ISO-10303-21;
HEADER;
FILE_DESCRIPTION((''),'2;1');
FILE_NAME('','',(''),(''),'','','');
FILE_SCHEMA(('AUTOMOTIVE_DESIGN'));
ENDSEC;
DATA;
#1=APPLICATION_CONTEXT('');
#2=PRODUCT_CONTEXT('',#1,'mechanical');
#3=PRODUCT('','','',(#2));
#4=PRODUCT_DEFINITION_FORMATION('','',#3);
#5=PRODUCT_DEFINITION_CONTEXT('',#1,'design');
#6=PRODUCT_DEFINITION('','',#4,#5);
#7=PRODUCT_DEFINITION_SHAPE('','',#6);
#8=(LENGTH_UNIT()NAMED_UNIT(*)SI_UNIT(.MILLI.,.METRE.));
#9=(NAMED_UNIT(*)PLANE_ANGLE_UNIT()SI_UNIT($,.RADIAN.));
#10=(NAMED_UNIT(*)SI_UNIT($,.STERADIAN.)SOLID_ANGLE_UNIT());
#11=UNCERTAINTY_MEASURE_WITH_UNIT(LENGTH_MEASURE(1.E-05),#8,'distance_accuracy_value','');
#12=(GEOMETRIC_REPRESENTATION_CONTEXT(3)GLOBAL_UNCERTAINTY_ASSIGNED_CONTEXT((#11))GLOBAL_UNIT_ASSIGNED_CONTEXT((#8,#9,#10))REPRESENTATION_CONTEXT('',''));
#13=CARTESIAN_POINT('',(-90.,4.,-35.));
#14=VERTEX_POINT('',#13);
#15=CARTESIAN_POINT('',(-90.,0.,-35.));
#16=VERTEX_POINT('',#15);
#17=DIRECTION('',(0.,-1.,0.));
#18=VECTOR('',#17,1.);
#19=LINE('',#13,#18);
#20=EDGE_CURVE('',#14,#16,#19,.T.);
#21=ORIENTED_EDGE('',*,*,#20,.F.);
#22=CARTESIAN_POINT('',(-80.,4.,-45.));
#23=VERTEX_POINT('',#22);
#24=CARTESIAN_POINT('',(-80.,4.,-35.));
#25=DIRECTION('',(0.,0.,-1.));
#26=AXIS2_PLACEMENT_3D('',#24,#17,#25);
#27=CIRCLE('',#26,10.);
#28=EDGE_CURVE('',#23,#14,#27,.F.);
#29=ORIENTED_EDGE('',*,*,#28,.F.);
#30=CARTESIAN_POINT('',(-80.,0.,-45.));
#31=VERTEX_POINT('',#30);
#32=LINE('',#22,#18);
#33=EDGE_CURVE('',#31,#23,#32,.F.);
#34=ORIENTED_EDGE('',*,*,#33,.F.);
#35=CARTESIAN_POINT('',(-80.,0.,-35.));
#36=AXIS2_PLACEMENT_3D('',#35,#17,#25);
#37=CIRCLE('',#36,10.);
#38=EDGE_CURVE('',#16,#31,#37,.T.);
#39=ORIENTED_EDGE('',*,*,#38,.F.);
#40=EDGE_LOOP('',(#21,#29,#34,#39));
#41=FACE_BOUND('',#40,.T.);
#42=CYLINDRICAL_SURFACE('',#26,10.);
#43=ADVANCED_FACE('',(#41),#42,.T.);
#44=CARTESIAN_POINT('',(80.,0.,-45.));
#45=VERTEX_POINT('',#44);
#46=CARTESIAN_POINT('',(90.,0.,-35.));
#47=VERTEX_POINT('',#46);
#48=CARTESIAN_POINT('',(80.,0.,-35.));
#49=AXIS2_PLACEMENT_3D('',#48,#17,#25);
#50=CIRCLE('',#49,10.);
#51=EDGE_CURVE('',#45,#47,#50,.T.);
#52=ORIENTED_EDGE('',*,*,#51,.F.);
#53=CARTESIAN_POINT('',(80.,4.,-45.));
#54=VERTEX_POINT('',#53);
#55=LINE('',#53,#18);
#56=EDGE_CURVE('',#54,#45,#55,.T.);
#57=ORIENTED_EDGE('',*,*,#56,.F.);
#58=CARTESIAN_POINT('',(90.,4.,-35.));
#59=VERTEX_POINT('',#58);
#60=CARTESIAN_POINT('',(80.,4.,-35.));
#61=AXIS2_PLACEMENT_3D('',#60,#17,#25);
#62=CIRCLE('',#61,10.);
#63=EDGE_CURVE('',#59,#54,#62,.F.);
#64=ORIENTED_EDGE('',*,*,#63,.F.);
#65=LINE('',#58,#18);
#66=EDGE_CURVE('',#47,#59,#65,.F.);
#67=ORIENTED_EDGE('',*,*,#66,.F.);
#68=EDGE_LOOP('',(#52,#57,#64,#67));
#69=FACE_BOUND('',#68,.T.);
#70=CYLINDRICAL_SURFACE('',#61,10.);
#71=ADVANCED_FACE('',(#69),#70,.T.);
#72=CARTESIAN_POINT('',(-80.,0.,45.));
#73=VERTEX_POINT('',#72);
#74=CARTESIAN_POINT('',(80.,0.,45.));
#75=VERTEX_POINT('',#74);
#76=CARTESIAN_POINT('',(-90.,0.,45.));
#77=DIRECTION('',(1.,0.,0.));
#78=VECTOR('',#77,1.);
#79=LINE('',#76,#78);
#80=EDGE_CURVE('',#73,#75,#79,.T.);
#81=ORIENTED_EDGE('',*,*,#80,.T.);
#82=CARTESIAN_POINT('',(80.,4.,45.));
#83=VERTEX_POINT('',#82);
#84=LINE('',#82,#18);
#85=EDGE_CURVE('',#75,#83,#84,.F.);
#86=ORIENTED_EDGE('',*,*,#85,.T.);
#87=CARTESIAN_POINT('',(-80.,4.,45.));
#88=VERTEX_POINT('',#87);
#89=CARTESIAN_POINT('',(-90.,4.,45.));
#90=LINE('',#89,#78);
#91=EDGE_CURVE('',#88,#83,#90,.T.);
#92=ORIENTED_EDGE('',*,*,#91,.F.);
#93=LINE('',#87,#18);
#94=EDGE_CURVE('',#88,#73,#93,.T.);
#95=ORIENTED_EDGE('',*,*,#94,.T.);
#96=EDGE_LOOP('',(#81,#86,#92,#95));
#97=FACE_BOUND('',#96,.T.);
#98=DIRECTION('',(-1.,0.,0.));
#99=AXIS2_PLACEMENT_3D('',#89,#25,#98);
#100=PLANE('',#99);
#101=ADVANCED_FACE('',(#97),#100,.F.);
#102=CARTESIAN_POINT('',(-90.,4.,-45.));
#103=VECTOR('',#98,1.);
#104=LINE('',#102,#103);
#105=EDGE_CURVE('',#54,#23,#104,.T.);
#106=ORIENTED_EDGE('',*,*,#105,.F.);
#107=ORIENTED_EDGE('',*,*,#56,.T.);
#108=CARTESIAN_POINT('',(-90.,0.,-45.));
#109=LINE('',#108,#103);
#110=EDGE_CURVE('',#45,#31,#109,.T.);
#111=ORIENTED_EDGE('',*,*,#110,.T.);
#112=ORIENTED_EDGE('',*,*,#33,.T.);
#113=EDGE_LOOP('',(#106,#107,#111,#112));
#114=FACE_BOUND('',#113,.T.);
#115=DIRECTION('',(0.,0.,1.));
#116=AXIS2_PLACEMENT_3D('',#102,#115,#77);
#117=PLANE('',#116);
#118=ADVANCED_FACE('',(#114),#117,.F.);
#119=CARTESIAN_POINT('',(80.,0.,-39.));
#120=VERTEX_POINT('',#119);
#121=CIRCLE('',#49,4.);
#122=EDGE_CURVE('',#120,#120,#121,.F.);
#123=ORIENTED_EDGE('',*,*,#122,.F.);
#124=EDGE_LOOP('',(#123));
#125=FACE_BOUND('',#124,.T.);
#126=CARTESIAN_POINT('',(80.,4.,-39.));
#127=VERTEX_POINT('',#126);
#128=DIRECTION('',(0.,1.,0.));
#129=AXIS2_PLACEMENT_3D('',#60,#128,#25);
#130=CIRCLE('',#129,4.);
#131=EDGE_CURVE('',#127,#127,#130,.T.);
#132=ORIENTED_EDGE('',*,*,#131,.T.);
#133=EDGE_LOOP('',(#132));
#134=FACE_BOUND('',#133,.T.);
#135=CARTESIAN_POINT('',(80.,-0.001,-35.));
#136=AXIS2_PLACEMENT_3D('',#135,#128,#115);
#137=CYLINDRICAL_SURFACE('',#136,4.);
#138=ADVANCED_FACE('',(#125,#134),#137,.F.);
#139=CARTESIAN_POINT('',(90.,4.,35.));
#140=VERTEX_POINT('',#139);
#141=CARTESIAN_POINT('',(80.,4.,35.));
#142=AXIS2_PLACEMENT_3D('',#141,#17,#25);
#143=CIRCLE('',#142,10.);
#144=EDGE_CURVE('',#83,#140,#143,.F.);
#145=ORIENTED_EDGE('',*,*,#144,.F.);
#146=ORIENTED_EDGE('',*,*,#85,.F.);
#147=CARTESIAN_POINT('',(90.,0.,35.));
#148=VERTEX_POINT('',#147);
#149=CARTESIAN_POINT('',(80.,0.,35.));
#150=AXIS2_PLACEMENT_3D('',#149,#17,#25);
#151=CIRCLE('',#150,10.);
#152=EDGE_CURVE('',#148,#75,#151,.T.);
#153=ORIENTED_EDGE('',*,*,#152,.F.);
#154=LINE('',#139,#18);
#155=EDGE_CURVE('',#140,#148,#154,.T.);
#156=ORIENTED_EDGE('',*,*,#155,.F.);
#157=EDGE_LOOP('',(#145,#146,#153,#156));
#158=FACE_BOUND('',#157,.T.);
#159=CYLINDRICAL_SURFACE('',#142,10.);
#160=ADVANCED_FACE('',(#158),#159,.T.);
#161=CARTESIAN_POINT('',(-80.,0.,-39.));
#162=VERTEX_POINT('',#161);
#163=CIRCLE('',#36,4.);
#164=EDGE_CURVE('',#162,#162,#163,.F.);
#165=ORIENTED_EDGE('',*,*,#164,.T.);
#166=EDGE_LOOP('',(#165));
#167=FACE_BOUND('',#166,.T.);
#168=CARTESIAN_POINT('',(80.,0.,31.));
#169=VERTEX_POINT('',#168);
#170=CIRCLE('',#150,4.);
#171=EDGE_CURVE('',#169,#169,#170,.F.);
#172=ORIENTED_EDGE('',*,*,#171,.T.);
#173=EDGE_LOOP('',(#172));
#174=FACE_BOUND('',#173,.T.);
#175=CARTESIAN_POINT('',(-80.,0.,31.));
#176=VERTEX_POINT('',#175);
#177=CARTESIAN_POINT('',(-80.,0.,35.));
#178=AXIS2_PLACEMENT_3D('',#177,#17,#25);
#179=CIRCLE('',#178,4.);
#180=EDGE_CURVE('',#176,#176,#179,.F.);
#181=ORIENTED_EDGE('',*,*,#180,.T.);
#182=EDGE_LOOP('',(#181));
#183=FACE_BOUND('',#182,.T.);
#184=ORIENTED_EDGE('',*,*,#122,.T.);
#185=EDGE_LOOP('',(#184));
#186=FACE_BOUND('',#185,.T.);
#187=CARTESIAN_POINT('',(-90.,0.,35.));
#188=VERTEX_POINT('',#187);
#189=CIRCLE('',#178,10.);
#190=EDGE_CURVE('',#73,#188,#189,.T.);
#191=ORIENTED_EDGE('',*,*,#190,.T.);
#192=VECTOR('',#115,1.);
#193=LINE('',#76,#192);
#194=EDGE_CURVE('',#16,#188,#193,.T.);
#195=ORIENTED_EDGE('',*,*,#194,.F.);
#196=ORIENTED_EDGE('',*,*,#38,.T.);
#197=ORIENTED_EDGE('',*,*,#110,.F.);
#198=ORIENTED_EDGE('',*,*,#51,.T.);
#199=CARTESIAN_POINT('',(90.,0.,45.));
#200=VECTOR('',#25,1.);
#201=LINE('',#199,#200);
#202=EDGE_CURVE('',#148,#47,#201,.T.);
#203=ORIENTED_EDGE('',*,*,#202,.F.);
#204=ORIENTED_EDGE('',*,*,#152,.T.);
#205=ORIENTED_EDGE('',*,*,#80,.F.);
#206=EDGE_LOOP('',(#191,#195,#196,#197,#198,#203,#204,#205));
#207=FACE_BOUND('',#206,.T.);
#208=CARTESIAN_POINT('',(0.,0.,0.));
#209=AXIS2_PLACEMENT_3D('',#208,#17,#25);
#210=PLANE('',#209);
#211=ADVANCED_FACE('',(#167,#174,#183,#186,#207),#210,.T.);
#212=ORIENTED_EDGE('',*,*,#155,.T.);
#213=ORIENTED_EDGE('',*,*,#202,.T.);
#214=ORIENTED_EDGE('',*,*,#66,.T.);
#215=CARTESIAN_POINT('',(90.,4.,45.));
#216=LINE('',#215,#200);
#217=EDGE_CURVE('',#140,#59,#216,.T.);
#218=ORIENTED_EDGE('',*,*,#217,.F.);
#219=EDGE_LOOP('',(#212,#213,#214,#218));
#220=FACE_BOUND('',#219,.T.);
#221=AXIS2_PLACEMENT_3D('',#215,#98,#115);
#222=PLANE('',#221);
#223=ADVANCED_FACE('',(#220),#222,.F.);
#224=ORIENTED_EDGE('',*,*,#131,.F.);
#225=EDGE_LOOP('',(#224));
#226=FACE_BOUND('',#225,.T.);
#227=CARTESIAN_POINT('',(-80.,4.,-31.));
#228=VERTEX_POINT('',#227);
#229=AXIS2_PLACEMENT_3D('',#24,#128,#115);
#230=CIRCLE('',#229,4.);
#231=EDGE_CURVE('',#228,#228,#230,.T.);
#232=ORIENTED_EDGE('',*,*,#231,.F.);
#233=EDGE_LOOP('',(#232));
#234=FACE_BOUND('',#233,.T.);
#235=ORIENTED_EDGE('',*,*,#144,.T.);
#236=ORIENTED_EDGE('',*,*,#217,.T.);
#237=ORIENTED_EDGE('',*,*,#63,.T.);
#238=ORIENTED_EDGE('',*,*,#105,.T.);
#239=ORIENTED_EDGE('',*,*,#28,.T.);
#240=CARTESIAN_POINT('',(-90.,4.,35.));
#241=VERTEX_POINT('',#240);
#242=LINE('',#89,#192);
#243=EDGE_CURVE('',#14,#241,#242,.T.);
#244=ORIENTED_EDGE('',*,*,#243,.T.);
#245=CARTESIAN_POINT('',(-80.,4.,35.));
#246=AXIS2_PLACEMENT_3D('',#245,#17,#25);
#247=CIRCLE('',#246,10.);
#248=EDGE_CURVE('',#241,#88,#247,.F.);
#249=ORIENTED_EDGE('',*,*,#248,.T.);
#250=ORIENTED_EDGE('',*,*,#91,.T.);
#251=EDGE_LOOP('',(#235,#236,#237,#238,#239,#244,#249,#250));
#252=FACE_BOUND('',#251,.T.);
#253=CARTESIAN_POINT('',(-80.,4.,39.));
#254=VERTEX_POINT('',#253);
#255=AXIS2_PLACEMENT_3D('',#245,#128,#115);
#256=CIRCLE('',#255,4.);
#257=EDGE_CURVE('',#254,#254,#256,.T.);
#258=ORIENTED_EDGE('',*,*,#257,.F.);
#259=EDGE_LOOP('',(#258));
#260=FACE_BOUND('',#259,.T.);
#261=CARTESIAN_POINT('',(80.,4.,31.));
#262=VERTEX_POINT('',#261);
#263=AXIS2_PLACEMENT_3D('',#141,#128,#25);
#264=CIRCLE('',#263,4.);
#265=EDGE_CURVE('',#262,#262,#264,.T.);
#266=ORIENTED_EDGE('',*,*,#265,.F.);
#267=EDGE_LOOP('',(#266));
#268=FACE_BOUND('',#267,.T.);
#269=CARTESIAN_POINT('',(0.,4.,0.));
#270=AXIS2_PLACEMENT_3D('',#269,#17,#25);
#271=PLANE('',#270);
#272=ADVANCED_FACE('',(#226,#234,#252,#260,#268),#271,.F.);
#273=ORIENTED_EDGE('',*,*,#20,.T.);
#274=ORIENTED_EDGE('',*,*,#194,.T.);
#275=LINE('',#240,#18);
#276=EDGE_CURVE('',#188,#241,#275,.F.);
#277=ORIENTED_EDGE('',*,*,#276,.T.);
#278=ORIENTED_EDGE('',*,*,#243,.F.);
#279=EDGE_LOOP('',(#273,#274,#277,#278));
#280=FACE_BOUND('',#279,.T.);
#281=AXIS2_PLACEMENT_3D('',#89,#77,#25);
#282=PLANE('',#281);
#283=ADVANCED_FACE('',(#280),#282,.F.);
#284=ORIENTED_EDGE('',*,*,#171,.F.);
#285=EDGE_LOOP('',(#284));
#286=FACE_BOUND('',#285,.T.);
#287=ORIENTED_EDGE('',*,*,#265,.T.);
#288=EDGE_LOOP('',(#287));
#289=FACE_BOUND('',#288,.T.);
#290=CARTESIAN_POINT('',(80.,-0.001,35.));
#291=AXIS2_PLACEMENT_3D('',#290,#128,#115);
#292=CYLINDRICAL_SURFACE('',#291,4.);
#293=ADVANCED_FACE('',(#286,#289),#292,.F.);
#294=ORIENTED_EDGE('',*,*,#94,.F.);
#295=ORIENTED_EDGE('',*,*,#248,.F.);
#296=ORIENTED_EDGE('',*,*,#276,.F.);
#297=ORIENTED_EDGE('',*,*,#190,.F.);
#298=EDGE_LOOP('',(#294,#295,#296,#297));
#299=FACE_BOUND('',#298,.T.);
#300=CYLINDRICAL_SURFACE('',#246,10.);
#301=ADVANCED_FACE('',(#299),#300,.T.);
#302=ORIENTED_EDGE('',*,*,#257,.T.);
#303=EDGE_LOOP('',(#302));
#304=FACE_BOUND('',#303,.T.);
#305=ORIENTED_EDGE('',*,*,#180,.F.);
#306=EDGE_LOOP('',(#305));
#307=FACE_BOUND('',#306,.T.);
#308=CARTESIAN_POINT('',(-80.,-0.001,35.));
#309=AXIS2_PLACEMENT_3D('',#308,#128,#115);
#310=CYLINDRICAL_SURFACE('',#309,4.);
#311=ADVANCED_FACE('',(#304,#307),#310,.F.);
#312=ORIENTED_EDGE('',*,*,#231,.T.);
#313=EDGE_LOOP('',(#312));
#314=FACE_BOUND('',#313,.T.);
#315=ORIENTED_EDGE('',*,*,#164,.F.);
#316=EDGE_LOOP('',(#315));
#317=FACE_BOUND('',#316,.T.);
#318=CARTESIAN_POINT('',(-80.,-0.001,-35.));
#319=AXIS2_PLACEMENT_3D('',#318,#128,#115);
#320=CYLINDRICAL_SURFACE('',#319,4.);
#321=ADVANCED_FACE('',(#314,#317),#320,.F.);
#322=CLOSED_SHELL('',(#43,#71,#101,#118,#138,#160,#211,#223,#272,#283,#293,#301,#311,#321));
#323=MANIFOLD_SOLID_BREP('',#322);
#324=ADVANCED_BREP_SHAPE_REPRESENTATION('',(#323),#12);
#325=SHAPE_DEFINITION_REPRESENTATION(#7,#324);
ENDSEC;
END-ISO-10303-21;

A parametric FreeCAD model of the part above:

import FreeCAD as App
import Part
import Sketcher

V = App.Vector
Q = App.Units.Quantity


def edges_at(feature, points):
    """Names of the edges that pass closest to the given points."""
    edges = feature.Shape.Edges
    near = lambda p: min(range(len(edges)), key=lambda i: edges[i].distToShape(Part.Vertex(*p))[0])
    return sorted({f"Edge{near(p) + 1}" for p in points})


def add_polygon(sketch, points):
    """Adds a closed chain of lines whose ends are joined by coincident constraints."""
    first, n = sketch.GeometryCount, len(points)
    for a, b in zip(points, points[1:] + points[:1]):
        sketch.addGeometry(Part.LineSegment(App.Vector(*a, 0), App.Vector(*b, 0)), False)
    for i in range(n):
        sketch.addConstraint(Sketcher.Constraint("Coincident", first + i, 2, first + (i + 1) % n, 1))

doc = App.newDocument("Part")
body = doc.addObject("PartDesign::Body", "Body")

# Sketch on XZ plane
sketch1 = body.newObject("Sketcher::SketchObject", "Sketch")
sketch1.AttachmentSupport = (doc.getObject("XZ_Plane"), [""])
sketch1.MapMode = "FlatFace"
add_polygon(sketch1, [(-90, -45), (-90, 45), (90, 45), (90, -45)])  # lines 0-3
sketch1.addConstraint(Sketcher.Constraint("Vertical", 0))
sketch1.addConstraint(Sketcher.Constraint("Horizontal", 1))
sketch1.addConstraint(Sketcher.Constraint("Vertical", 2))
sketch1.addConstraint(Sketcher.Constraint("Horizontal", 3))
sketch1.addConstraint(Sketcher.Constraint("Symmetric", 0, 2, 2, 2, -1, 1))
sketch1.addConstraint(Sketcher.Constraint("DistanceX", 1, 1, 1, 2, Q("180 mm")))
sketch1.addConstraint(Sketcher.Constraint("DistanceY", 0, 1, 0, 2, Q("90 mm")))
pad1 = body.newObject("PartDesign::Pad", "Pad")
pad1.Profile = sketch1
pad1.Length = 4
pad1.Reversed = True
doc.recompute()

fillet = body.newObject("PartDesign::Fillet", "Fillet")
fillet.Base = (pad1, edges_at(pad1, [
    (90, 2, 45),
    (-90, 2, 45),
    (-90, 2, -45),
    (90, 2, -45),
]))
fillet.Radius = 10

# Sketch on XZ plane
sketch2 = body.newObject("Sketcher::SketchObject", "Sketch001")
sketch2.AttachmentSupport = (doc.getObject("XZ_Plane"), [""])
sketch2.MapMode = "FlatFace"
sketch2.AttachmentOffset = App.Placement(V(0, 0, -4), App.Rotation())
sketch2.addGeometry(Part.Circle(V(-80, -35, 0), V(0, 0, 1), 4), False)
sketch2.addConstraint(Sketcher.Constraint("Diameter", 0, Q("8 mm")))
sketch2.addConstraint(Sketcher.Constraint("DistanceX", 0, 3, -1, 1, Q("80 mm")))
sketch2.addConstraint(Sketcher.Constraint("DistanceY", 0, 3, -1, 1, Q("35 mm")))
pocket1 = body.newObject("PartDesign::Pocket", "Pocket")
pocket1.Profile = sketch2
pocket1.Type = "UpToFirst"
pocket1.Reversed = True

# Sketch on XZ plane
sketch3 = body.newObject("Sketcher::SketchObject", "Sketch002")
sketch3.AttachmentSupport = (doc.getObject("XZ_Plane"), [""])
sketch3.MapMode = "FlatFace"
sketch3.AttachmentOffset = App.Placement(V(0, 0, -4), App.Rotation())
sketch3.addGeometry(Part.Circle(V(-80, 35, 0), V(0, 0, 1), 4), False)
sketch3.addConstraint(Sketcher.Constraint("Diameter", 0, Q("8 mm")))
sketch3.addConstraint(Sketcher.Constraint("DistanceX", 0, 3, -1, 1, Q("80 mm")))
sketch3.addConstraint(Sketcher.Constraint("DistanceY", -1, 1, 0, 3, Q("35 mm")))
pocket2 = body.newObject("PartDesign::Pocket", "Pocket001")
pocket2.Profile = sketch3
pocket2.Type = "UpToFirst"
pocket2.Reversed = True

# Sketch on XZ plane
sketch4 = body.newObject("Sketcher::SketchObject", "Sketch003")
sketch4.AttachmentSupport = (doc.getObject("XZ_Plane"), [""])
sketch4.MapMode = "FlatFace"
sketch4.AttachmentOffset = App.Placement(V(0, 0, -4), App.Rotation())
sketch4.addGeometry(Part.Circle(V(80, 35, 0), V(0, 0, 1), 4), False)
sketch4.addConstraint(Sketcher.Constraint("Diameter", 0, Q("8 mm")))
sketch4.addConstraint(Sketcher.Constraint("DistanceX", -1, 1, 0, 3, Q("80 mm")))
sketch4.addConstraint(Sketcher.Constraint("DistanceY", -1, 1, 0, 3, Q("35 mm")))
pocket3 = body.newObject("PartDesign::Pocket", "Pocket002")
pocket3.Profile = sketch4
pocket3.Type = "UpToFirst"
pocket3.Reversed = True

# Sketch on XZ plane
sketch5 = body.newObject("Sketcher::SketchObject", "Sketch004")
sketch5.AttachmentSupport = (doc.getObject("XZ_Plane"), [""])
sketch5.MapMode = "FlatFace"
sketch5.AttachmentOffset = App.Placement(V(0, 0, -4), App.Rotation())
sketch5.addGeometry(Part.Circle(V(80, -35, 0), V(0, 0, 1), 4), False)
sketch5.addConstraint(Sketcher.Constraint("Diameter", 0, Q("8 mm")))
sketch5.addConstraint(Sketcher.Constraint("DistanceX", -1, 1, 0, 3, Q("80 mm")))
sketch5.addConstraint(Sketcher.Constraint("DistanceY", 0, 3, -1, 1, Q("35 mm")))
pocket4 = body.newObject("PartDesign::Pocket", "Pocket003")
pocket4.Profile = sketch5
pocket4.Type = "UpToFirst"
pocket4.Reversed = True

doc.recompute()
